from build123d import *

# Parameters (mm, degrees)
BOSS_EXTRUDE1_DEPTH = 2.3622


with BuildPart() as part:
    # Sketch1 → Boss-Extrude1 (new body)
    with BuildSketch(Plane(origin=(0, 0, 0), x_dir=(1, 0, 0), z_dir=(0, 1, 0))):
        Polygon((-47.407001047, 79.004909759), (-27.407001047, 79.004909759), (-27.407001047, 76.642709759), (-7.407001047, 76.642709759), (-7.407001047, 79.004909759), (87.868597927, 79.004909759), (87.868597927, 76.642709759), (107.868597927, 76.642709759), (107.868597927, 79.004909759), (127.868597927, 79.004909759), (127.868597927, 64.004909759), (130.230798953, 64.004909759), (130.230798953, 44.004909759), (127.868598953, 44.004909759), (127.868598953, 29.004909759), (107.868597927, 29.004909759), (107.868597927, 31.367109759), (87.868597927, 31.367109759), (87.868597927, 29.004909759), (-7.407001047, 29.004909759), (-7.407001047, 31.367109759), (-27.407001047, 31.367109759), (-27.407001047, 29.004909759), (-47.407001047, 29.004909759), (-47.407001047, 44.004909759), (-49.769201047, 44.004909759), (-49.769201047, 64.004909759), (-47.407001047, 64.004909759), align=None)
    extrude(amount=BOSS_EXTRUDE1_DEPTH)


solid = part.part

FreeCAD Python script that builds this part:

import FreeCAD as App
import Part
import Sketcher
Q = App.Units.Quantity

doc = App.newDocument("Part")
body = doc.addObject("PartDesign::Body", "Body")

# Sketch on XZ plane
sketch1 = doc.addObject("Sketcher::SketchObject", "Sketch")
body.addObject(sketch1)
sketch1.AttachmentSupport = (doc.XZ_Plane, [""])
sketch1.MapMode = "FlatFace"
sketch1.addGeometry(Part.LineSegment(App.Vector(-27.407001, -79.00491, 0), App.Vector(-47.407001, -79.00491, 0)), False)
sketch1.addGeometry(Part.LineSegment(App.Vector(-47.407001, -79.00491, 0), App.Vector(-47.407001, -64.00491, 0)), False)
sketch1.addGeometry(Part.LineSegment(App.Vector(-47.407001, -64.00491, 0), App.Vector(-49.769201, -64.00491, 0)), False)
sketch1.addGeometry(Part.LineSegment(App.Vector(-49.769201, -64.00491, 0), App.Vector(-49.769201, -44.00491, 0)), False)
sketch1.addGeometry(Part.LineSegment(App.Vector(-49.769201, -44.00491, 0), App.Vector(-47.407001, -44.00491, 0)), False)
sketch1.addGeometry(Part.LineSegment(App.Vector(-47.407001, -44.00491, 0), App.Vector(-47.407001, -29.00491, 0)), False)
sketch1.addGeometry(Part.LineSegment(App.Vector(-47.407001, -29.00491, 0), App.Vector(-27.407001, -29.00491, 0)), False)
sketch1.addGeometry(Part.LineSegment(App.Vector(-27.407001, -29.00491, 0), App.Vector(-27.407001, -31.36711, 0)), False)
sketch1.addGeometry(Part.LineSegment(App.Vector(-27.407001, -31.36711, 0), App.Vector(-7.407001, -31.36711, 0)), False)
sketch1.addGeometry(Part.LineSegment(App.Vector(-7.407001, -31.36711, 0), App.Vector(-7.407001, -29.00491, 0)), False)
sketch1.addGeometry(Part.LineSegment(App.Vector(-7.407001, -29.00491, 0), App.Vector(87.868598, -29.00491, 0)), False)
sketch1.addGeometry(Part.LineSegment(App.Vector(87.868598, -29.00491, 0), App.Vector(87.868598, -31.36711, 0)), False)
sketch1.addGeometry(Part.LineSegment(App.Vector(87.868598, -31.36711, 0), App.Vector(107.868598, -31.36711, 0)), False)
sketch1.addGeometry(Part.LineSegment(App.Vector(107.868598, -31.36711, 0), App.Vector(107.868598, -29.00491, 0)), False)
sketch1.addGeometry(Part.LineSegment(App.Vector(107.868598, -29.00491, 0), App.Vector(127.868599, -29.00491, 0)), False)
sketch1.addGeometry(Part.LineSegment(App.Vector(127.868599, -29.00491, 0), App.Vector(127.868599, -44.00491, 0)), False)
sketch1.addGeometry(Part.LineSegment(App.Vector(127.868599, -44.00491, 0), App.Vector(130.230799, -44.00491, 0)), False)
sketch1.addGeometry(Part.LineSegment(App.Vector(130.230799, -44.00491, 0), App.Vector(130.230799, -64.00491, 0)), False)
sketch1.addGeometry(Part.LineSegment(App.Vector(130.230799, -64.00491, 0), App.Vector(127.868598, -64.00491, 0)), False)
sketch1.addGeometry(Part.LineSegment(App.Vector(127.868598, -64.00491, 0), App.Vector(127.868598, -79.00491, 0)), False)
sketch1.addGeometry(Part.LineSegment(App.Vector(127.868598, -79.00491, 0), App.Vector(107.868598, -79.00491, 0)), False)
sketch1.addGeometry(Part.LineSegment(App.Vector(107.868598, -79.00491, 0), App.Vector(107.868598, -76.64271, 0)), False)
sketch1.addGeometry(Part.LineSegment(App.Vector(107.868598, -76.64271, 0), App.Vector(87.868598, -76.64271, 0)), False)
sketch1.addGeometry(Part.LineSegment(App.Vector(87.868598, -76.64271, 0), App.Vector(87.868598, -79.00491, 0)), False)
sketch1.addGeometry(Part.LineSegment(App.Vector(87.868598, -79.00491, 0), App.Vector(-7.407001, -79.00491, 0)), False)
sketch1.addGeometry(Part.LineSegment(App.Vector(-7.407001, -79.00491, 0), App.Vector(-7.407001, -76.64271, 0)), False)
sketch1.addGeometry(Part.LineSegment(App.Vector(-7.407001, -76.64271, 0), App.Vector(-27.407001, -76.64271, 0)), False)
sketch1.addGeometry(Part.LineSegment(App.Vector(-27.407001, -76.64271, 0), App.Vector(-27.407001, -79.00491, 0)), False)
sketch1.addConstraint(Sketcher.Constraint("Coincident", 0, 2, 1, 1))
sketch1.addConstraint(Sketcher.Constraint("Coincident", 1, 2, 2, 1))
sketch1.addConstraint(Sketcher.Constraint("Coincident", 2, 2, 3, 1))
sketch1.addConstraint(Sketcher.Constraint("Coincident", 3, 2, 4, 1))
sketch1.addConstraint(Sketcher.Constraint("Coincident", 4, 2, 5, 1))
sketch1.addConstraint(Sketcher.Constraint("Coincident", 5, 2, 6, 1))
sketch1.addConstraint(Sketcher.Constraint("Coincident", 6, 2, 7, 1))
sketch1.addConstraint(Sketcher.Constraint("Coincident", 7, 2, 8, 1))
sketch1.addConstraint(Sketcher.Constraint("Coincident", 8, 2, 9, 1))
sketch1.addConstraint(Sketcher.Constraint("Coincident", 9, 2, 10, 1))
sketch1.addConstraint(Sketcher.Constraint("Coincident", 10, 2, 11, 1))
sketch1.addConstraint(Sketcher.Constraint("Coincident", 11, 2, 12, 1))
sketch1.addConstraint(Sketcher.Constraint("Coincident", 12, 2, 13, 1))
sketch1.addConstraint(Sketcher.Constraint("Coincident", 13, 2, 14, 1))
sketch1.addConstraint(Sketcher.Constraint("Coincident", 14, 2, 15, 1))
sketch1.addConstraint(Sketcher.Constraint("Coincident", 15, 2, 16, 1))
sketch1.addConstraint(Sketcher.Constraint("Coincident", 16, 2, 17, 1))
sketch1.addConstraint(Sketcher.Constraint("Coincident", 17, 2, 18, 1))
sketch1.addConstraint(Sketcher.Constraint("Coincident", 18, 2, 19, 1))
sketch1.addConstraint(Sketcher.Constraint("Coincident", 19, 2, 20, 1))
sketch1.addConstraint(Sketcher.Constraint("Coincident", 20, 2, 21, 1))
sketch1.addConstraint(Sketcher.Constraint("Coincident", 21, 2, 22, 1))
sketch1.addConstraint(Sketcher.Constraint("Coincident", 22, 2, 23, 1))
sketch1.addConstraint(Sketcher.Constraint("Coincident", 23, 2, 24, 1))
sketch1.addConstraint(Sketcher.Constraint("Coincident", 24, 2, 25, 1))
sketch1.addConstraint(Sketcher.Constraint("Coincident", 25, 2, 26, 1))
sketch1.addConstraint(Sketcher.Constraint("Coincident", 26, 2, 27, 1))
sketch1.addConstraint(Sketcher.Constraint("Coincident", 27, 2, 0, 1))
sketch1.addConstraint(Sketcher.Constraint("Horizontal", 0))
sketch1.addConstraint(Sketcher.Constraint("Vertical", 1))
sketch1.addConstraint(Sketcher.Constraint("Horizontal", 2))
sketch1.addConstraint(Sketcher.Constraint("Vertical", 3))
sketch1.addConstraint(Sketcher.Constraint("Horizontal", 4))
sketch1.addConstraint(Sketcher.Constraint("Vertical", 5))
sketch1.addConstraint(Sketcher.Constraint("Horizontal", 6))
sketch1.addConstraint(Sketcher.Constraint("Vertical", 7))
sketch1.addConstraint(Sketcher.Constraint("Horizontal", 8))
sketch1.addConstraint(Sketcher.Constraint("Vertical", 9))
sketch1.addConstraint(Sketcher.Constraint("Horizontal", 10))
sketch1.addConstraint(Sketcher.Constraint("Vertical", 11))
sketch1.addConstraint(Sketcher.Constraint("Horizontal", 12))
sketch1.addConstraint(Sketcher.Constraint("Vertical", 13))
sketch1.addConstraint(Sketcher.Constraint("Horizontal", 14))
sketch1.addConstraint(Sketcher.Constraint("Vertical", 15))
sketch1.addConstraint(Sketcher.Constraint("Horizontal", 16))
sketch1.addConstraint(Sketcher.Constraint("Vertical", 17))
sketch1.addConstraint(Sketcher.Constraint("Horizontal", 18))
sketch1.addConstraint(Sketcher.Constraint("Vertical", 19))
sketch1.addConstraint(Sketcher.Constraint("Horizontal", 20))
sketch1.addConstraint(Sketcher.Constraint("Vertical", 21))
sketch1.addConstraint(Sketcher.Constraint("Horizontal", 22))
sketch1.addConstraint(Sketcher.Constraint("Vertical", 23))
sketch1.addConstraint(Sketcher.Constraint("Horizontal", 24))
sketch1.addConstraint(Sketcher.Constraint("Vertical", 25))
sketch1.addConstraint(Sketcher.Constraint("Horizontal", 26))
sketch1.addConstraint(Sketcher.Constraint("Vertical", 27))
sketch1.addConstraint(Sketcher.Constraint("Horizontal", 6, 2, 9, 2))
sketch1.addConstraint(Sketcher.Constraint("Horizontal", 8, 2, 11, 2))
sketch1.addConstraint(Sketcher.Constraint("Horizontal", 10, 2, 13, 2))
sketch1.addConstraint(Sketcher.Constraint("Horizontal", 4, 2, 15, 2))
sketch1.addConstraint(Sketcher.Constraint("Horizontal", 2, 2, 17, 2))
sketch1.addConstraint(Sketcher.Constraint("Horizontal", 0, 2, 19, 2))
sketch1.addConstraint(Sketcher.Constraint("Horizontal", 20, 2, 23, 2))
sketch1.addConstraint(Sketcher.Constraint("Horizontal", 22, 2, 25, 2))
sketch1.addConstraint(Sketcher.Constraint("Vertical", 1, 2, 4, 2))
sketch1.addConstraint(Sketcher.Constraint("Vertical", 15, 2, 18, 2))
sketch1.addConstraint(Sketcher.Constraint("Vertical", 13, 2, 20, 2))
sketch1.addConstraint(Sketcher.Constraint("Vertical", 11, 2, 22, 2))
sketch1.addConstraint(Sketcher.Constraint("Vertical", 9, 2, 24, 2))
sketch1.addConstraint(Sketcher.Constraint("Vertical", 7, 2, 26, 2))
sketch1.addConstraint(Sketcher.Constraint("Equal", 6, 8))
sketch1.addConstraint(Sketcher.Constraint("Equal", 8, 12))
sketch1.addConstraint(Sketcher.Constraint("Equal", 12, 14))
sketch1.addConstraint(Sketcher.Constraint("Equal", 4, 16))
sketch1.addConstraint(Sketcher.Constraint("Equal", 26, 3))
sketch1.addConstraint(Sketcher.Constraint("Equal", 1, 5))
sketch1.addConstraint(Sketcher.Constraint("Equal", 18, 7))
sketch1.addConstraint(Sketcher.Constraint("Equal", 13, 21))
sketch1.addConstraint(Sketcher.Constraint("DistanceX", 0, 2, 0, 1, Q("20 mm")))
sketch1.addConstraint(Sketcher.Constraint("DistanceY", 1, 1, 1, 2, Q("15 mm")))
sketch1.addConstraint(Sketcher.Constraint("DistanceX", 2, 2, 2, 1, Q("2.3622 mm")))
sketch1.addConstraint(Sketcher.Constraint("DistanceX", 10, 1, 10, 2, Q("95.275599 mm")))
sketch1.addConstraint(Sketcher.Constraint("DistanceX", 0, 2, -1, 1, Q("47.407001 mm")))
sketch1.addConstraint(Sketcher.Constraint("DistanceY", 0, 2, -1, 1, Q("79.00491 mm")))
pad1 = doc.addObject("PartDesign::Pad", "Pad")
body.addObject(pad1)
pad1.Profile = sketch1
pad1.Length = 2.3622
pad1.Reversed = True

doc.recompute()
